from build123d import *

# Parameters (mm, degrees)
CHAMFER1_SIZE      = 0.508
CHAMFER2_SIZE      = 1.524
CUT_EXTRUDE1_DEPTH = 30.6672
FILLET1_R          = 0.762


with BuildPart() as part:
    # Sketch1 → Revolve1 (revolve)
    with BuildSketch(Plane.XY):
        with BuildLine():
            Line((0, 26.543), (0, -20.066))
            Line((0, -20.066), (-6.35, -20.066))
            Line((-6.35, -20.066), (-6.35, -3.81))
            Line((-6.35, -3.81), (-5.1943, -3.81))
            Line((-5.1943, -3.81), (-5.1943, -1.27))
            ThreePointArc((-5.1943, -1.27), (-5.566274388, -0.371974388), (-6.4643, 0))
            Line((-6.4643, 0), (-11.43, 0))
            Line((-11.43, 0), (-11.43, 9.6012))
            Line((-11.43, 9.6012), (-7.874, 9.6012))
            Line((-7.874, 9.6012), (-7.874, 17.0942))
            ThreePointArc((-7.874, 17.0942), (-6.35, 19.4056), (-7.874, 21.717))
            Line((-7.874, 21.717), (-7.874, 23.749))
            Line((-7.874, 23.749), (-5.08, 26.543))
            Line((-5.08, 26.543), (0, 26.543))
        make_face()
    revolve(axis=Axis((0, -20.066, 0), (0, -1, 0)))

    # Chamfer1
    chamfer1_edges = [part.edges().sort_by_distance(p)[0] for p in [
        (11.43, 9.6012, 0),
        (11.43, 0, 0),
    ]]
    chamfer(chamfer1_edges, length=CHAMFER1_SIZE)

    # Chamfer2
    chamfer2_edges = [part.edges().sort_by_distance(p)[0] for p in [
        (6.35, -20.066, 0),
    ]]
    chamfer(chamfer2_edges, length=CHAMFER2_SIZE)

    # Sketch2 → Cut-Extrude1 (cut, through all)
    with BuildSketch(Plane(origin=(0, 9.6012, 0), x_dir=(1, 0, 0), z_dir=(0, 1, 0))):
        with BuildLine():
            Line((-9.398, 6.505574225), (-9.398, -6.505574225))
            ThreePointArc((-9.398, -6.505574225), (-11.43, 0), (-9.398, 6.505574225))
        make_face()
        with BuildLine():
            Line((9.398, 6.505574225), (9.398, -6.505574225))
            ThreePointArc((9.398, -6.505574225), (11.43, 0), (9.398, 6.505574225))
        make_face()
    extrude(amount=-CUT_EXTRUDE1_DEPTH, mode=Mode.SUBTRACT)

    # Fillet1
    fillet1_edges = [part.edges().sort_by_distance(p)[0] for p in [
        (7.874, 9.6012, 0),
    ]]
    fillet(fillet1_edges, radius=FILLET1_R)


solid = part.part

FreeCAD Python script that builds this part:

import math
import FreeCAD as App
import Part
import Sketcher
Q = App.Units.Quantity


def edges_at(feature, points):
    """Names of the edges that pass closest to the given points."""
    edges = feature.Shape.Edges
    near = lambda p: min(range(len(edges)), key=lambda i: edges[i].distToShape(Part.Vertex(*p))[0])
    return sorted({f"Edge{near(p) + 1}" for p in points})

doc = App.newDocument("Part")
body = doc.addObject("PartDesign::Body", "Body")

# Sketch on XY plane
sketch1 = body.newObject("Sketcher::SketchObject", "Sketch")
sketch1.AttachmentSupport = (doc.getObject("XY_Plane"), [""])
sketch1.MapMode = "FlatFace"
sketch1.addGeometry([
    Part.LineSegment(App.Vector(0, -20.066, 0), App.Vector(0, 26.543, 0)),  # 0
    Part.LineSegment(App.Vector(0, 26.543, 0), App.Vector(-5.08, 26.543, 0)),  # 1
    Part.LineSegment(App.Vector(-5.08, 26.543, 0), App.Vector(-7.874, 23.749, 0)),  # 2
    Part.LineSegment(App.Vector(-7.874, 23.749, 0), App.Vector(-7.874, 21.717, 0)),  # 3
    Part.ArcOfCircle(Part.Circle(App.Vector(-8.864812, 19.4056, 0), App.Vector(0, 0, 1), 2.514812), math.radians(-66.796977), math.radians(66.796977)),  # 4
    Part.LineSegment(App.Vector(-7.874, 17.0942, 0), App.Vector(-7.874, 9.6012, 0)),  # 5
    Part.LineSegment(App.Vector(-7.874, 9.6012, 0), App.Vector(-11.43, 9.6012, 0)),  # 6
    Part.LineSegment(App.Vector(-11.43, 9.6012, 0), App.Vector(-11.43, 0, 0)),  # 7
    Part.LineSegment(App.Vector(-11.43, 0, 0), App.Vector(-6.4643, 0, 0)),  # 8
    Part.ArcOfCircle(Part.Circle(App.Vector(-6.4643, -1.27, 0), App.Vector(0, 0, 1), 1.27), math.radians(0), math.radians(90)),  # 9
    Part.LineSegment(App.Vector(-5.1943, -1.27, 0), App.Vector(-5.1943, -3.81, 0)),  # 10
    Part.LineSegment(App.Vector(-5.1943, -3.81, 0), App.Vector(-6.35, -3.81, 0)),  # 11
    Part.LineSegment(App.Vector(-6.35, -3.81, 0), App.Vector(-6.35, -20.066, 0)),  # 12
    Part.LineSegment(App.Vector(-6.35, -20.066, 0), App.Vector(0, -20.066, 0)),  # 13
], False)
sketch1.addConstraint([
    Sketcher.Constraint("Coincident", 0, 2, 1, 1),
    Sketcher.Constraint("Coincident", 1, 2, 2, 1),
    Sketcher.Constraint("Coincident", 2, 2, 3, 1),
    Sketcher.Constraint("Coincident", 3, 2, 4, 2),
    Sketcher.Constraint("Coincident", 4, 1, 5, 1),
    Sketcher.Constraint("Coincident", 5, 2, 6, 1),
    Sketcher.Constraint("Coincident", 6, 2, 7, 1),
    Sketcher.Constraint("Coincident", 7, 2, 8, 1),
    Sketcher.Constraint("Tangent", 8, 2, 9, 2),
    Sketcher.Constraint("Tangent", 9, 1, 10, 1),
    Sketcher.Constraint("Coincident", 10, 2, 11, 1),
    Sketcher.Constraint("Coincident", 11, 2, 12, 1),
    Sketcher.Constraint("Coincident", 12, 2, 13, 1),
    Sketcher.Constraint("Coincident", 13, 2, 0, 1),
    Sketcher.Constraint("Vertical", 0),
    Sketcher.Constraint("Horizontal", 1),
    Sketcher.Constraint("Vertical", 3),
    Sketcher.Constraint("Vertical", 5),
    Sketcher.Constraint("Horizontal", 6),
    Sketcher.Constraint("Vertical", 7),
    Sketcher.Constraint("Horizontal", 8),
    Sketcher.Constraint("Vertical", 10),
    Sketcher.Constraint("Horizontal", 11),
    Sketcher.Constraint("Vertical", 12),
    Sketcher.Constraint("Horizontal", 13),
    Sketcher.Constraint("PointOnObject", 0, 2, -2),
    Sketcher.Constraint("PointOnObject", 7, 2, -1),
    Sketcher.Constraint("Vertical", 3, 2, 4, 1),
    Sketcher.Constraint("Radius", 9, Q("0.05 in")),
    Sketcher.Constraint("DistanceX", 1, 2, 1, 1, Q("0.2 in")),
    Sketcher.Constraint("DistanceY", 10, 2, 10, 1, Q("0.1 in")),
    Sketcher.Constraint("Angle", 2, Q("-135 deg")),
    Sketcher.Constraint("DistanceX", 6, 2, 6, 1, Q("0.14 in")),
    Sketcher.Constraint("DistanceX", 13, 1, 13, 2, Q("0.25 in")),
    Sketcher.Constraint("DistanceY", 3, 2, 3, 1, Q("0.08 in")),
    Sketcher.Constraint("DistanceY", 12, 2, 12, 1, Q("0.64 in")),
    Sketcher.Constraint("DistanceX", 7, 2, 11, 2, Q("0.2 in")),
    Sketcher.Constraint("DistanceY", 0, 1, 0, 2, Q("1.835 in")),
    Sketcher.Constraint("DistanceY", 5, 2, 5, 1, Q("0.295 in")),
    Sketcher.Constraint("DistanceY", 7, 2, 7, 1, Q("0.378 in")),
    Sketcher.Constraint("DistanceX", 8, 1, 8, 2, Q("0.1955 in")),
    Sketcher.Constraint("Radius", 4, Q("2.514812 mm")),
])
revolution = body.newObject("PartDesign::Revolution", "Revolution")
revolution.Profile = sketch1
revolution.ReferenceAxis = (sketch1, ["V_Axis"])
revolution.Angle = 360
doc.recompute()

chamfer = body.newObject("PartDesign::Chamfer", "Chamfer")
chamfer.Base = (revolution, edges_at(revolution, [(11.43, 9.601, 0), (11.43, 0, 0)]))
chamfer.Size = Q("0.02 in")
doc.recompute()

chamfer2 = body.newObject("PartDesign::Chamfer", "Chamfer001")
chamfer2.Base = (chamfer, edges_at(chamfer, [(6.35, -20.066, 0)]))
chamfer2.Size = Q("0.06 in")

# Sketch on XZ plane
sketch2 = body.newObject("Sketcher::SketchObject", "Sketch001")
sketch2.AttachmentSupport = (doc.getObject("XZ_Plane"), [""])
sketch2.MapMode = "FlatFace"
sketch2.AttachmentOffset = App.Placement(App.Vector(0, 0, -0.378 * 25.4), App.Rotation())
sketch2.addGeometry([
    Part.LineSegment(App.Vector(-9.398, 6.505574, 0), App.Vector(-9.398, -6.505574, 0)),
    Part.ArcOfCircle(Part.Circle(App.Vector(0, 0, 0), App.Vector(0, 0, 1), 11.43), math.radians(145.307869), math.radians(214.692131)),
    Part.LineSegment(App.Vector(9.398, -6.505574, 0), App.Vector(9.398, 6.505574, 0)),
    Part.ArcOfCircle(Part.Circle(App.Vector(0, 0, 0), App.Vector(0, 0, 1), 11.43), math.radians(-34.692131), math.radians(34.692131)),
], False)
sketch2.addConstraint([
    Sketcher.Constraint("Coincident", 0, 1, 1, 1),
    Sketcher.Constraint("Coincident", 1, 2, 0, 2),
    Sketcher.Constraint("Coincident", 2, 1, 3, 1),
    Sketcher.Constraint("Coincident", 3, 2, 2, 2),
    Sketcher.Constraint("Vertical", 0),
    Sketcher.Constraint("Vertical", 2),
    Sketcher.Constraint("Coincident", 1, 3, -1, 1),
    Sketcher.Constraint("Coincident", 3, 3, -1, 1),
    Sketcher.Constraint("Equal", 1, 3),
    Sketcher.Constraint("Horizontal", 1, 2, 2, 1),
    Sketcher.Constraint("Radius", 1, Q("0.45 in")),
    Sketcher.Constraint("DistanceX", 0, 1, -1, 1, Q("0.37 in")),
])
pocket1 = body.newObject("PartDesign::Pocket", "Pocket")
pocket1.Profile = sketch2
pocket1.Type = "ThroughAll"
pocket1.Reversed = True
doc.recompute()

fillet = body.newObject("PartDesign::Fillet", "Fillet")
fillet.Base = (pocket1, edges_at(pocket1, [(7.874, 9.601, 0)]))
fillet.Radius = Q("0.03 in")

doc.recompute()
